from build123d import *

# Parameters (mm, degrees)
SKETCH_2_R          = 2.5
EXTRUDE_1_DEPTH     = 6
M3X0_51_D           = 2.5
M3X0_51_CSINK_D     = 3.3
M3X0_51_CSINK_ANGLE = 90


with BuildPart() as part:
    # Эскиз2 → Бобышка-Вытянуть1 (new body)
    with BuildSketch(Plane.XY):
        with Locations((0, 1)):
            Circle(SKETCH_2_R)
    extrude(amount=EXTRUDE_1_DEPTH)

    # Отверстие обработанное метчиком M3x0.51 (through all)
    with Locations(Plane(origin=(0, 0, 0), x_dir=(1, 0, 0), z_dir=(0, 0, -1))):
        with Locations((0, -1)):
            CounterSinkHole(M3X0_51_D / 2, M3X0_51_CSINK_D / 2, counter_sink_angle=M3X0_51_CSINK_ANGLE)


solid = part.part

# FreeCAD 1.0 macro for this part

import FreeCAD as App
import Part
import Sketcher

doc = App.newDocument("Part")
body = doc.addObject("PartDesign::Body", "Body")

sketch1 = doc.addObject("Sketcher::SketchObject", "Sketch")
body.addObject(sketch1)
sketch1.AttachmentSupport = (doc.XY_Plane, [""])
sketch1.MapMode = "FlatFace"
sketch1.addGeometry(Part.Circle(App.Vector(0, 1, 0), App.Vector(0, 0, 1), 2.5), False)
sketch1.addConstraint([
    Sketcher.Constraint("PointOnObject", 0, 3, -2),
    Sketcher.Constraint("Diameter", 0, 5.0),
    Sketcher.Constraint("DistanceY", -1, 1, 0, 3, 1.0),
])
pad1 = doc.addObject("PartDesign::Pad", "Pad")
body.addObject(pad1)
pad1.Profile = sketch1
pad1.Length = 6

sketch2 = doc.addObject("Sketcher::SketchObject", "Sketch001")
body.addObject(sketch2)
sketch2.AttachmentSupport = (doc.XY_Plane, [""])
sketch2.MapMode = "FlatFace"
sketch2.addGeometry(Part.Circle(App.Vector(0, 1, 0), App.Vector(0, 0, 1), 1.2), False)
sketch2.addConstraint([
    Sketcher.Constraint("PointOnObject", 0, 3, -2),
    Sketcher.Constraint("Diameter", 0, 2.5),
    Sketcher.Constraint("DistanceY", -1, 1, 0, 3, 1.0),
])
doc.recompute()
hole = doc.addObject("PartDesign::Hole", "Hole")
body.addObject(hole)
hole.Profile = sketch2
hole.ThreadType = "None"
hole.Diameter = 2.5
hole.DepthType = "ThroughAll"
hole.HoleCutType = "Countersink"
hole.HoleCutDiameter = 3.3
hole.HoleCutCountersinkAngle = 90
hole.Reversed = True

doc.recompute()
